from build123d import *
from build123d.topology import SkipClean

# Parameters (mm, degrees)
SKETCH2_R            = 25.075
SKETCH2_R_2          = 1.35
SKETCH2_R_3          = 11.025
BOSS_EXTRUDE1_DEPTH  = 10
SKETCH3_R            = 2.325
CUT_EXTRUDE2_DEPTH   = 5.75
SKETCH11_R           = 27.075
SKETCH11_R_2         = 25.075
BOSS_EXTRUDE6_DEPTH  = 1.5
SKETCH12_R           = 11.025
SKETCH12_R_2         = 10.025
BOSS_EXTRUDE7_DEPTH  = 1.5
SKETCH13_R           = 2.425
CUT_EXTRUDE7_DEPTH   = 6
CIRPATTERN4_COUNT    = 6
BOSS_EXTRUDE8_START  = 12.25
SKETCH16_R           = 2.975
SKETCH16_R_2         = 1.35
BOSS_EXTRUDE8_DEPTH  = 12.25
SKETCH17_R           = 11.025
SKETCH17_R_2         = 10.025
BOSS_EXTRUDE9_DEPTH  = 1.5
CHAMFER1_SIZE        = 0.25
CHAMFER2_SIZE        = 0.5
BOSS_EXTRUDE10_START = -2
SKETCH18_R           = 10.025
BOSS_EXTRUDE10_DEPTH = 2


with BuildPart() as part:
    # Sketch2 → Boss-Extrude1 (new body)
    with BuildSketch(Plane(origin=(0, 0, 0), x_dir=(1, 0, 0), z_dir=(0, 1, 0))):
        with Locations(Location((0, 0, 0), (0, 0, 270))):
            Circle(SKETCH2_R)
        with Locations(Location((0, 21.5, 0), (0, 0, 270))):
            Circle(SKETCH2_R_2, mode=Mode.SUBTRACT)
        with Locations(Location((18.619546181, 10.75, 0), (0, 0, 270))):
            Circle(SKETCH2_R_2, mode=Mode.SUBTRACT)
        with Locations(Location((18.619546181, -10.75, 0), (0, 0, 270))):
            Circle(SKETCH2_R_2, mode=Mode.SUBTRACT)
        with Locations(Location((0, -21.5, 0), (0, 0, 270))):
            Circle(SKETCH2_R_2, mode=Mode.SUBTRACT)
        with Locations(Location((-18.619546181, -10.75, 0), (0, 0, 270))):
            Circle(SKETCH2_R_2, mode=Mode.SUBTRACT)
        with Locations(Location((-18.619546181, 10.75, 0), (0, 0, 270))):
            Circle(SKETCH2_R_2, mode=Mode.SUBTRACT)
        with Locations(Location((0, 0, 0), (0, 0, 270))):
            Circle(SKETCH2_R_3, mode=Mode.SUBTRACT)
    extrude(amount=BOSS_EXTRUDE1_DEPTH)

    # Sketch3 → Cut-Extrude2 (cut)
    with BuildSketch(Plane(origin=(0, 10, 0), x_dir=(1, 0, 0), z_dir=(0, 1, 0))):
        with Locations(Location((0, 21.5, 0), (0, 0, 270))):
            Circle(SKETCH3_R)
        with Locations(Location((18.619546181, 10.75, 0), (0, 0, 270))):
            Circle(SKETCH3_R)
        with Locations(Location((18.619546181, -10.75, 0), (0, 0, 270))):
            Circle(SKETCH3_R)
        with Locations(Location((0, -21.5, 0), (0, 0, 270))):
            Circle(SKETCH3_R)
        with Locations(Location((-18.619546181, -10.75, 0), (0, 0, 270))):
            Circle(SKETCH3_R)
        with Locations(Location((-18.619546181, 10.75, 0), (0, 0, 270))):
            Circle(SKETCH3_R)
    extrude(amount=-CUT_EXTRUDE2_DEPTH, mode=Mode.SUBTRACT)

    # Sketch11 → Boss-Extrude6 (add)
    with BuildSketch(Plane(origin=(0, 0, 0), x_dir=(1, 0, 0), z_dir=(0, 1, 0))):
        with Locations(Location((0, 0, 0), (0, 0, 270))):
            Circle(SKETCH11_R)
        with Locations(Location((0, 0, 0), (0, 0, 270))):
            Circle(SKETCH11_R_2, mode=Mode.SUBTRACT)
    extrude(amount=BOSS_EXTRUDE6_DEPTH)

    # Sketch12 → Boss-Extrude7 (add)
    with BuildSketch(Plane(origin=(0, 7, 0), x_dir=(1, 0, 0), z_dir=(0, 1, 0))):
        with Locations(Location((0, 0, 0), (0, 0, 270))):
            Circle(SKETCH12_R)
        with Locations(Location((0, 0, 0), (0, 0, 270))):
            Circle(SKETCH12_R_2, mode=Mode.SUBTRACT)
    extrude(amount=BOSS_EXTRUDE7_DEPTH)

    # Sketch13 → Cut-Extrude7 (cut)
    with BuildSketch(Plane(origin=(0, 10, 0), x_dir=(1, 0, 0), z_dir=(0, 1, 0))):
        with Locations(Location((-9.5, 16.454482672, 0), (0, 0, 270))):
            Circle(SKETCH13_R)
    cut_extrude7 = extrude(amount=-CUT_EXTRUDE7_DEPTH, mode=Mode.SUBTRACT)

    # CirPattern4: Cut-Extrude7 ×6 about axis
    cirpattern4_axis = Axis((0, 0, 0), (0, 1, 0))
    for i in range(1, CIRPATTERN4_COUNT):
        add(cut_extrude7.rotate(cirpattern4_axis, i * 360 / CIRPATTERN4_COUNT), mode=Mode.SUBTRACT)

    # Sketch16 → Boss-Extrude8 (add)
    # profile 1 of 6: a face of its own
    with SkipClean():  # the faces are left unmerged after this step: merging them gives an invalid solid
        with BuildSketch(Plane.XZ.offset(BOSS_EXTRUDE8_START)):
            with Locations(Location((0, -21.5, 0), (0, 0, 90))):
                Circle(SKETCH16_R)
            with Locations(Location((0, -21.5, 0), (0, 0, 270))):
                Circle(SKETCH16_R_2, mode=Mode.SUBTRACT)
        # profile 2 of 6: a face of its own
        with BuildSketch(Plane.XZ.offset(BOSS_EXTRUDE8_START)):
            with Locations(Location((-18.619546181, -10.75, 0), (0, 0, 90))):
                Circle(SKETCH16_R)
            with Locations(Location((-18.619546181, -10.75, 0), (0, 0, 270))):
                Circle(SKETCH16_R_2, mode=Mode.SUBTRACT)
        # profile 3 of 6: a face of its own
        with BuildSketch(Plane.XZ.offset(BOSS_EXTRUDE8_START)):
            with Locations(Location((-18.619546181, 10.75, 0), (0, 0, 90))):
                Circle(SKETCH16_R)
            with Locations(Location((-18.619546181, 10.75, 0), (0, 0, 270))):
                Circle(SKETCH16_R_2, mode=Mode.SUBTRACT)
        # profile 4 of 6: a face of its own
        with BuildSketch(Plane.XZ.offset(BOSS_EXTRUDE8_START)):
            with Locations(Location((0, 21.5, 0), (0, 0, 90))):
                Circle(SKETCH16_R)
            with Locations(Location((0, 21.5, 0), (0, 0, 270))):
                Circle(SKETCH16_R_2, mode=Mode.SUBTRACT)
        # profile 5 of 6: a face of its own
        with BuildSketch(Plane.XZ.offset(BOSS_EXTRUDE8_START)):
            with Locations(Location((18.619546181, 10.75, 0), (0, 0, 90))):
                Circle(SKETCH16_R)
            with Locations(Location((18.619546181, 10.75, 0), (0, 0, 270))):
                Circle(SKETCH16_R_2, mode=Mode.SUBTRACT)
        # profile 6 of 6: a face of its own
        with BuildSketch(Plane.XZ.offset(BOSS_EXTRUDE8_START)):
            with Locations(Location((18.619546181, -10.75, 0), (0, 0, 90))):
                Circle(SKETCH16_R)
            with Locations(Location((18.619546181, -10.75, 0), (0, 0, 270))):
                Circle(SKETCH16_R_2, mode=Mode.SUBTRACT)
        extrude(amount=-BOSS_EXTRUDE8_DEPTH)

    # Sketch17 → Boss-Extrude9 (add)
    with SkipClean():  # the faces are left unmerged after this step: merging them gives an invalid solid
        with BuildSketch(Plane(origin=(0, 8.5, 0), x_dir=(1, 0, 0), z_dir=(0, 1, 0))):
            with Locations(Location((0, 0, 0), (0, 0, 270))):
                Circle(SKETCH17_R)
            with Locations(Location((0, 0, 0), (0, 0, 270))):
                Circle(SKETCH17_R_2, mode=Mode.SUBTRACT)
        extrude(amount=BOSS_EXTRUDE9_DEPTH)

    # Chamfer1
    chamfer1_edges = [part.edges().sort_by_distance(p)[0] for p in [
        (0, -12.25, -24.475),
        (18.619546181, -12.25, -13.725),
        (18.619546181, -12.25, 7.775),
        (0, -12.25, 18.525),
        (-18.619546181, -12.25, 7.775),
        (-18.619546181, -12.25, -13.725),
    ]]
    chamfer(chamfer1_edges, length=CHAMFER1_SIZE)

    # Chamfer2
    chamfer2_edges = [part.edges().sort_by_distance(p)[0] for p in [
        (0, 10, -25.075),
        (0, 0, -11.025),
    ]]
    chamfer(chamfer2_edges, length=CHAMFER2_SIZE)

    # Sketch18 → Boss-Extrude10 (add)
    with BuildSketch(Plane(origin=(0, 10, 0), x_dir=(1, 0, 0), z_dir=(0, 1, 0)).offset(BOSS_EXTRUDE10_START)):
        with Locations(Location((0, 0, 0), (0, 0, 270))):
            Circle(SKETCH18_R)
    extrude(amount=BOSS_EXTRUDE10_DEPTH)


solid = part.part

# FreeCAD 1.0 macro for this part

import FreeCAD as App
import Part
import Sketcher
Q = App.Units.Quantity


def edges_at(feature, points):
    """Names of the edges that pass closest to the given points."""
    edges = feature.Shape.Edges
    near = lambda p: min(range(len(edges)), key=lambda i: edges[i].distToShape(Part.Vertex(*p))[0])
    return sorted({f"Edge{near(p) + 1}" for p in points})

doc = App.newDocument("Part")
body = doc.addObject("PartDesign::Body", "Body")

# Sketch on XZ plane
sketch1 = body.newObject("Sketcher::SketchObject", "Sketch")
sketch1.AttachmentSupport = (doc.getObject("XZ_Plane"), [""])
sketch1.MapMode = "FlatFace"
sketch1.addGeometry([
    Part.Circle(App.Vector(0, 0, 0), App.Vector(0, 0, 1), 25.1),  # 0
    Part.Circle(App.Vector(-18.6, -10.8, 0), App.Vector(0, 0, 1), 1.4),  # 1
    Part.Circle(App.Vector(0, -21.5, 0), App.Vector(0, 0, 1), 1.4),  # 2
    Part.Circle(App.Vector(-18.6, 10.8, 0), App.Vector(0, 0, 1), 1.4),  # 3
    Part.Circle(App.Vector(18.6, -10.8, 0), App.Vector(0, 0, 1), 1.4),  # 4
    Part.Circle(App.Vector(0, 0, 0), App.Vector(0, 0, 1), 11),  # 5
    Part.Circle(App.Vector(0, 21.5, 0), App.Vector(0, 0, 1), 1.4),  # 6
    Part.Circle(App.Vector(18.6, 10.8, 0), App.Vector(0, 0, 1), 1.4),  # 7
], False)
sketch1.addConstraint([
    Sketcher.Constraint("Coincident", 0, 3, -1, 1),
    Sketcher.Constraint("Coincident", 5, 3, -1, 1),
    Sketcher.Constraint("Equal", 1, 2),
    Sketcher.Constraint("Equal", 2, 3),
    Sketcher.Constraint("Equal", 3, 4),
    Sketcher.Constraint("Equal", 4, 6),
    Sketcher.Constraint("Equal", 6, 7),
    Sketcher.Constraint("Symmetric", 3, 3, 4, 3, -1, 1),
    Sketcher.Constraint("Symmetric", 2, 3, 6, 3, -1, 1),
    Sketcher.Constraint("Symmetric", 1, 3, 7, 3, -1, 1),
    Sketcher.Constraint("Symmetric", 1, 3, 4, 3, -2),
    Sketcher.Constraint("PointOnObject", 2, 3, -2),
    Sketcher.Constraint("Diameter", 1, Q("2.7 mm")),
    Sketcher.Constraint("Diameter", 0, Q("50.15 mm")),
    Sketcher.Constraint("Diameter", 5, Q("22.05 mm")),
    Sketcher.Constraint("DistanceY", 2, 3, -1, 1, Q("21.5 mm")),
    Sketcher.Constraint("DistanceY", 1, 3, 3, 3, Q("21.5 mm")),
    Sketcher.Constraint("DistanceX", 1, 3, -1, 1, Q("18.619546 mm")),
])
pad1 = body.newObject("PartDesign::Pad", "Pad")
pad1.Profile = sketch1
pad1.Length = 10
pad1.Reversed = True

# Sketch on XZ plane
sketch2 = body.newObject("Sketcher::SketchObject", "Sketch001")
sketch2.AttachmentSupport = (doc.getObject("XZ_Plane"), [""])
sketch2.MapMode = "FlatFace"
sketch2.AttachmentOffset = App.Placement(App.Vector(0, 0, -10), App.Rotation())
sketch2.addGeometry([
    Part.Circle(App.Vector(0, -21.5, 0), App.Vector(0, 0, 1), 2.3),  # 0
    Part.Circle(App.Vector(18.6, -10.8, 0), App.Vector(0, 0, 1), 2.3),  # 1
    Part.Circle(App.Vector(18.6, 10.8, 0), App.Vector(0, 0, 1), 2.3),  # 2
    Part.Circle(App.Vector(0, 21.5, 0), App.Vector(0, 0, 1), 2.3),  # 3
    Part.Circle(App.Vector(-18.6, 10.8, 0), App.Vector(0, 0, 1), 2.3),  # 4
    Part.Circle(App.Vector(-18.6, -10.8, 0), App.Vector(0, 0, 1), 2.3),  # 5
], False)
sketch2.addConstraint([
    Sketcher.Constraint("Equal", 0, 1),
    Sketcher.Constraint("Equal", 1, 2),
    Sketcher.Constraint("Equal", 2, 3),
    Sketcher.Constraint("Equal", 3, 4),
    Sketcher.Constraint("Equal", 4, 5),
    Sketcher.Constraint("Symmetric", 0, 3, 3, 3, -1, 1),
    Sketcher.Constraint("Symmetric", 1, 3, 4, 3, -1, 1),
    Sketcher.Constraint("Symmetric", 2, 3, 5, 3, -1, 1),
    Sketcher.Constraint("Symmetric", 2, 3, 4, 3, -2),
    Sketcher.Constraint("PointOnObject", 0, 3, -2),
    Sketcher.Constraint("Diameter", 0, Q("4.65 mm")),
    Sketcher.Constraint("DistanceY", 0, 3, 3, 3, Q("43 mm")),
    Sketcher.Constraint("DistanceY", 1, 3, 2, 3, Q("21.5 mm")),
    Sketcher.Constraint("DistanceX", -1, 1, 1, 3, Q("18.619546 mm")),
])
pocket1 = body.newObject("PartDesign::Pocket", "Pocket")
pocket1.Profile = sketch2
pocket1.Length = 5.75
pocket1.Reversed = True

# Sketch on XZ plane
sketch3 = body.newObject("Sketcher::SketchObject", "Sketch002")
sketch3.AttachmentSupport = (doc.getObject("XZ_Plane"), [""])
sketch3.MapMode = "FlatFace"
sketch3.addGeometry([
    Part.Circle(App.Vector(0, 0, 0), App.Vector(0, 0, 1), 27),
    Part.Circle(App.Vector(0, 0, 0), App.Vector(0, 0, 1), 25),
], False)
sketch3.addConstraint([
    Sketcher.Constraint("Coincident", 0, 3, -1, 1),
    Sketcher.Constraint("Coincident", 1, 3, -1, 1),
    Sketcher.Constraint("Diameter", 0, Q("54.15 mm")),
    Sketcher.Constraint("Diameter", 1, Q("50.15 mm")),
])
pad2 = body.newObject("PartDesign::Pad", "Pad001")
pad2.Profile = sketch3
pad2.Length = 1.5
pad2.Reversed = True

# Sketch on XZ plane
sketch4 = body.newObject("Sketcher::SketchObject", "Sketch003")
sketch4.AttachmentSupport = (doc.getObject("XZ_Plane"), [""])
sketch4.MapMode = "FlatFace"
sketch4.AttachmentOffset = App.Placement(App.Vector(0, 0, -7), App.Rotation())
sketch4.addGeometry([
    Part.Circle(App.Vector(0, 0, 0), App.Vector(0, 0, 1), 11),
    Part.Circle(App.Vector(0, 0, 0), App.Vector(0, 0, 1), 10),
], False)
sketch4.addConstraint([
    Sketcher.Constraint("Coincident", 0, 3, -1, 1),
    Sketcher.Constraint("Coincident", 1, 3, -1, 1),
    Sketcher.Constraint("Diameter", 0, Q("22.05 mm")),
    Sketcher.Constraint("Diameter", 1, Q("20.05 mm")),
])
pad3 = body.newObject("PartDesign::Pad", "Pad002")
pad3.Profile = sketch4
pad3.Length = 1.5
pad3.Reversed = True

# Sketch on XZ plane
sketch5 = body.newObject("Sketcher::SketchObject", "Sketch004")
sketch5.AttachmentSupport = (doc.getObject("XZ_Plane"), [""])
sketch5.MapMode = "FlatFace"
sketch5.AttachmentOffset = App.Placement(App.Vector(0, 0, -10), App.Rotation())
sketch5.addGeometry(Part.Circle(App.Vector(-9.5, -16.5, 0), App.Vector(0, 0, 1), 2.4), False)
sketch5.addConstraint([
    Sketcher.Constraint("Diameter", 0, Q("4.85 mm")),
    Sketcher.Constraint("DistanceX", 0, 3, -1, 1, Q("9.5 mm")),
    Sketcher.Constraint("DistanceY", 0, 3, -1, 1, Q("16.454483 mm")),
])
pocket2 = body.newObject("PartDesign::Pocket", "Pocket001")
pocket2.Profile = sketch5
pocket2.Length = 6
pocket2.Reversed = True
doc.recompute()

polarpattern = body.newObject("PartDesign::PolarPattern", "PolarPattern")
polarpattern.Originals = [pocket2]
polarpattern.Axis = (doc.getObject("Y_Axis"), [""])
polarpattern.Angle = 360
polarpattern.Occurrences = 6
body.Tip = polarpattern

# Sketch on XZ plane
sketch6 = body.newObject("Sketcher::SketchObject", "Sketch005")
sketch6.AttachmentSupport = (doc.getObject("XZ_Plane"), [""])
sketch6.MapMode = "FlatFace"
sketch6.AttachmentOffset = App.Placement(App.Vector(0, 0, 12.25), App.Rotation())
sketch6.addGeometry([
    Part.Circle(App.Vector(0, -21.5, 0), App.Vector(0, 0, 1), 3),  # 0
    Part.Circle(App.Vector(0, -21.5, 0), App.Vector(0, 0, 1), 1.4),  # 1
    Part.Circle(App.Vector(-18.6, -10.8, 0), App.Vector(0, 0, 1), 3),  # 2
    Part.Circle(App.Vector(-18.6, -10.8, 0), App.Vector(0, 0, 1), 1.4),  # 3
    Part.Circle(App.Vector(-18.6, 10.8, 0), App.Vector(0, 0, 1), 3),  # 4
    Part.Circle(App.Vector(-18.6, 10.8, 0), App.Vector(0, 0, 1), 1.4),  # 5
    Part.Circle(App.Vector(0, 21.5, 0), App.Vector(0, 0, 1), 3),  # 6
    Part.Circle(App.Vector(0, 21.5, 0), App.Vector(0, 0, 1), 1.4),  # 7
    Part.Circle(App.Vector(18.6, 10.8, 0), App.Vector(0, 0, 1), 3),  # 8
    Part.Circle(App.Vector(18.6, 10.8, 0), App.Vector(0, 0, 1), 1.4),  # 9
    Part.Circle(App.Vector(18.6, -10.8, 0), App.Vector(0, 0, 1), 3),  # 10
    Part.Circle(App.Vector(18.6, -10.8, 0), App.Vector(0, 0, 1), 1.4),  # 11
], False)
sketch6.addConstraint([
    Sketcher.Constraint("Coincident", 1, 3, 0, 3),
    Sketcher.Constraint("Coincident", 3, 3, 2, 3),
    Sketcher.Constraint("Coincident", 5, 3, 4, 3),
    Sketcher.Constraint("Coincident", 7, 3, 6, 3),
    Sketcher.Constraint("Coincident", 9, 3, 8, 3),
    Sketcher.Constraint("Coincident", 11, 3, 10, 3),
    Sketcher.Constraint("Equal", 0, 2),
    Sketcher.Constraint("Equal", 1, 3),
    Sketcher.Constraint("Equal", 2, 4),
    Sketcher.Constraint("Equal", 3, 5),
    Sketcher.Constraint("Equal", 4, 6),
    Sketcher.Constraint("Equal", 5, 7),
    Sketcher.Constraint("Equal", 6, 8),
    Sketcher.Constraint("Equal", 7, 9),
    Sketcher.Constraint("Equal", 8, 10),
    Sketcher.Constraint("Equal", 9, 11),
    Sketcher.Constraint("Symmetric", 0, 3, 6, 3, -1, 1),
    Sketcher.Constraint("Symmetric", 2, 3, 8, 3, -1, 1),
    Sketcher.Constraint("Symmetric", 4, 3, 10, 3, -1, 1),
    Sketcher.Constraint("Symmetric", 4, 3, 8, 3, -2),
    Sketcher.Constraint("PointOnObject", 0, 3, -2),
    Sketcher.Constraint("Diameter", 1, Q("2.7 mm")),
    Sketcher.Constraint("Diameter", 0, Q("5.95 mm")),
    Sketcher.Constraint("DistanceY", 0, 3, 6, 3, Q("43 mm")),
    Sketcher.Constraint("DistanceY", 2, 3, 4, 3, Q("21.5 mm")),
    Sketcher.Constraint("DistanceX", 2, 3, -1, 1, Q("18.619546 mm")),
])
pad4 = body.newObject("PartDesign::Pad", "Pad003")
pad4.Profile = sketch6
pad4.Length = 12.25
pad4.Reversed = True

# Sketch on XZ plane
sketch7 = body.newObject("Sketcher::SketchObject", "Sketch006")
sketch7.AttachmentSupport = (doc.getObject("XZ_Plane"), [""])
sketch7.MapMode = "FlatFace"
sketch7.AttachmentOffset = App.Placement(App.Vector(0, 0, -8.5), App.Rotation())
sketch7.addGeometry([
    Part.Circle(App.Vector(0, 0, 0), App.Vector(0, 0, 1), 11),
    Part.Circle(App.Vector(0, 0, 0), App.Vector(0, 0, 1), 10),
], False)
sketch7.addConstraint([
    Sketcher.Constraint("Coincident", 0, 3, -1, 1),
    Sketcher.Constraint("Coincident", 1, 3, -1, 1),
    Sketcher.Constraint("Diameter", 0, Q("22.05 mm")),
    Sketcher.Constraint("Diameter", 1, Q("20.05 mm")),
])
pad5 = body.newObject("PartDesign::Pad", "Pad004")
pad5.Profile = sketch7
pad5.Length = 1.5
pad5.Reversed = True
doc.recompute()

chamfer = body.newObject("PartDesign::Chamfer", "Chamfer")
chamfer.Base = (pad5, edges_at(pad5, [
    (0, -12.25, -24.475),
    (18.62, -12.25, -13.725),
    (18.62, -12.25, 7.775),
    (0, -12.25, 18.525),
    (-18.62, -12.25, 7.775),
    (-18.62, -12.25, -13.725),
]))
chamfer.Size = 0.25
doc.recompute()

chamfer2 = body.newObject("PartDesign::Chamfer", "Chamfer001")
chamfer2.Base = (chamfer, edges_at(chamfer, [(0, 10, -25.075), (0, 0, -11.025)]))
chamfer2.Size = 0.5

# Sketch on XZ plane
sketch8 = body.newObject("Sketcher::SketchObject", "Sketch007")
sketch8.AttachmentSupport = (doc.getObject("XZ_Plane"), [""])
sketch8.MapMode = "FlatFace"
sketch8.AttachmentOffset = App.Placement(App.Vector(0, 0, -8), App.Rotation())
sketch8.addGeometry(Part.Circle(App.Vector(0, 0, 0), App.Vector(0, 0, 1), 10), False)
sketch8.addConstraint([
    Sketcher.Constraint("Coincident", 0, 3, -1, 1),
    Sketcher.Constraint("Diameter", 0, Q("20.05 mm")),
])
pad6 = body.newObject("PartDesign::Pad", "Pad005")
pad6.Profile = sketch8
pad6.Length = 2
pad6.Reversed = True

doc.recompute()
